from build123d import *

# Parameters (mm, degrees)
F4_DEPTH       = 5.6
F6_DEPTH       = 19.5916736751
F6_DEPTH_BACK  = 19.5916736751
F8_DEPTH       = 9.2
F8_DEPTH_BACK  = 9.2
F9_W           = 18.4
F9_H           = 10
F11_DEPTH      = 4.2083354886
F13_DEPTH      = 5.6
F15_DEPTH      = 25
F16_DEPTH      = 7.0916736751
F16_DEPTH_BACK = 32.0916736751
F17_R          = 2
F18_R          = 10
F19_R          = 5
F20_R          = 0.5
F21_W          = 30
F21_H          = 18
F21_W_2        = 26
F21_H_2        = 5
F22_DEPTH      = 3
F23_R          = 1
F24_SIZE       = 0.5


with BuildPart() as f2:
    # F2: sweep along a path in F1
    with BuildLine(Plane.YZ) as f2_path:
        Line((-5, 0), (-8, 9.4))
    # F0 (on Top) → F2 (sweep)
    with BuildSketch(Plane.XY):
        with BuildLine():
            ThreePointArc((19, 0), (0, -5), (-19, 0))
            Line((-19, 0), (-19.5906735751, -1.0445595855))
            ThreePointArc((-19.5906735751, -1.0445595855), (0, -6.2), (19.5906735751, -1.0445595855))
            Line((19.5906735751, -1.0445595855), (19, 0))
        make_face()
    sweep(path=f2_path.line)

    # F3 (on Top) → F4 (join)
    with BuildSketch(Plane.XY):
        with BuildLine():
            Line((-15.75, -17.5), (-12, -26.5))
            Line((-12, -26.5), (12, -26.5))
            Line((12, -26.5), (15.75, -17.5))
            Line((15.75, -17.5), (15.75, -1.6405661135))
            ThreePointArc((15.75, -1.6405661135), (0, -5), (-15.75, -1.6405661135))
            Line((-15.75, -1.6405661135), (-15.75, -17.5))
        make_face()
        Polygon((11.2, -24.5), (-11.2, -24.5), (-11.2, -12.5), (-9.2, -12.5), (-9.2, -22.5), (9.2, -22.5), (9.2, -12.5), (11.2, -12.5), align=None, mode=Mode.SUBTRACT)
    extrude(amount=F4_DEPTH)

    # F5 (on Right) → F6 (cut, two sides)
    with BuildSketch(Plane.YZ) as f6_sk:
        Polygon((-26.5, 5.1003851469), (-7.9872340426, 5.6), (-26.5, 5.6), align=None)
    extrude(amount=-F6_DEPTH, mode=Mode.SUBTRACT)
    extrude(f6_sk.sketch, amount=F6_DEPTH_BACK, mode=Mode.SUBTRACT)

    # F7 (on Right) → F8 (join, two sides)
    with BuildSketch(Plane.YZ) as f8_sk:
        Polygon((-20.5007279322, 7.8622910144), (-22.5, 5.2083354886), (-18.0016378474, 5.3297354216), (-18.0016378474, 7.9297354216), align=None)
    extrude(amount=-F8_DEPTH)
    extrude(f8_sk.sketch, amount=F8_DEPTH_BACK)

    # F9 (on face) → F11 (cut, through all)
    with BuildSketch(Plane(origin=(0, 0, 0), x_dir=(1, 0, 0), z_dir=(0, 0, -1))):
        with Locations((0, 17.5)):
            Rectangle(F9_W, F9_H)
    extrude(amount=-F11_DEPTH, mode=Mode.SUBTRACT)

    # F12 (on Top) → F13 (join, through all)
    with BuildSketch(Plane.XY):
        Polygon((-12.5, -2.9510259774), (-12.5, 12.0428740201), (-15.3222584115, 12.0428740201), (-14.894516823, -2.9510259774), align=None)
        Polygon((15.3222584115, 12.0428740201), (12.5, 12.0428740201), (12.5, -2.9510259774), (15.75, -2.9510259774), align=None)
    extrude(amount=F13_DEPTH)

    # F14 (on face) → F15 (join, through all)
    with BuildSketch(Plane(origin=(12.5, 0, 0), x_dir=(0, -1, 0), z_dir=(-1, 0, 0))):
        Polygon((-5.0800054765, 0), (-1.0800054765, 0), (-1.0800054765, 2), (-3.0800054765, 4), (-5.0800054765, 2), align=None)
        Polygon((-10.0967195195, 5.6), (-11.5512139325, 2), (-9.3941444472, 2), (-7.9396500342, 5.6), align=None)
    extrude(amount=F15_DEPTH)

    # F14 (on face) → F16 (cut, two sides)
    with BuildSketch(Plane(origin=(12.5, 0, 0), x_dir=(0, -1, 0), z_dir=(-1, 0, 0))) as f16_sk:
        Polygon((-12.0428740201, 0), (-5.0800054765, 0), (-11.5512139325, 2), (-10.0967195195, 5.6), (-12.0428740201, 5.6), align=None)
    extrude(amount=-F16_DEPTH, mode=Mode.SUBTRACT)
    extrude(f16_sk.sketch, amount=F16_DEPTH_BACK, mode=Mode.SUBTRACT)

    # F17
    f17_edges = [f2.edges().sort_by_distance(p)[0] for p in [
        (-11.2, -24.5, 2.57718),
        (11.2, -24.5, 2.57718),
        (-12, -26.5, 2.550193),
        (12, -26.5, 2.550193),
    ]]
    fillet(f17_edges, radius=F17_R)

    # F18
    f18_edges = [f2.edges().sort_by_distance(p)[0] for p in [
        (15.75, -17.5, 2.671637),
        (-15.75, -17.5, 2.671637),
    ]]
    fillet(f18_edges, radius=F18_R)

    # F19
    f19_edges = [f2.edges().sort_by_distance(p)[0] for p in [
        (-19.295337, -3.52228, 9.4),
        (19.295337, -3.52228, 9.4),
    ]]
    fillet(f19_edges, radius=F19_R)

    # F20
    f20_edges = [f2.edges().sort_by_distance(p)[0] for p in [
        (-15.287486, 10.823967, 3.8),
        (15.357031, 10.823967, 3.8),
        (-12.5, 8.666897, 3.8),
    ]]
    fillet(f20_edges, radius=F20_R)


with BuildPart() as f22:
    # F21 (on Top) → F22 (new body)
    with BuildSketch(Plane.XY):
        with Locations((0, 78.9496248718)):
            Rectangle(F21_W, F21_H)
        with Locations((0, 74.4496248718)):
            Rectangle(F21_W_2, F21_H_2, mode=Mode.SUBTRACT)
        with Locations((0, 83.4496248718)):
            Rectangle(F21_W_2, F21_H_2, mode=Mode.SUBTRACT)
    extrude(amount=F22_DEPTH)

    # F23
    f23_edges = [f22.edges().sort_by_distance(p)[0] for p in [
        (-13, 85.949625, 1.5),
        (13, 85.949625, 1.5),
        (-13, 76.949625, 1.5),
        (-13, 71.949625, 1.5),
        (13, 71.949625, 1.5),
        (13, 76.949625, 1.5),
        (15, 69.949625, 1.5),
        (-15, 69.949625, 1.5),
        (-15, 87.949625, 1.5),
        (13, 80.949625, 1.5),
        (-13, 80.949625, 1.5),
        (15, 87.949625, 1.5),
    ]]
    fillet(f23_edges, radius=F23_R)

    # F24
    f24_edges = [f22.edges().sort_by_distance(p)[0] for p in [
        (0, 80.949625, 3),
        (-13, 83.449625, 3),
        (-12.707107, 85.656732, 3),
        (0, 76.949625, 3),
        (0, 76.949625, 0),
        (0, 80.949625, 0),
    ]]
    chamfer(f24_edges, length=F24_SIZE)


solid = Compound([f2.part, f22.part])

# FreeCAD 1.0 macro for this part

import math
import FreeCAD as App
import Part
import Sketcher
Q = App.Units.Quantity


def edges_at(feature, points):
    """Names of the edges that pass closest to the given points."""
    edges = feature.Shape.Edges
    near = lambda p: min(range(len(edges)), key=lambda i: edges[i].distToShape(Part.Vertex(*p))[0])
    return sorted({f"Edge{near(p) + 1}" for p in points})

doc = App.newDocument("Part")
body = doc.addObject("PartDesign::Body", "Body")

sketch1 = body.newObject("Sketcher::SketchObject", "Sketch")
sketch1.AttachmentSupport = (doc.getObject("XY_Plane"), [""])
sketch1.MapMode = "FlatFace"
sketch1.addGeometry(Part.ArcOfCircle(Part.Circle(App.Vector(0, 33.6, 0), App.Vector(0, 0, 1), 38.6), math.radians(-119), math.radians(-61)), False)
sketch1.addGeometry(Part.LineSegment(App.Vector(-19, 0, 0), App.Vector(-19.6, -1, 0)), False)
sketch1.addGeometry(Part.ArcOfCircle(Part.Circle(App.Vector(0, 33.6, 0), App.Vector(0, 0, 1), 39.8), math.radians(-119), math.radians(-61)), False)
sketch1.addGeometry(Part.LineSegment(App.Vector(19.6, -1, 0), App.Vector(19, 0, 0)), False)
sketch1.addConstraint(Sketcher.Constraint("Coincident", 0, 1, 1, 1))
sketch1.addConstraint(Sketcher.Constraint("Coincident", 1, 2, 2, 1))
sketch1.addConstraint(Sketcher.Constraint("Coincident", 2, 2, 3, 1))
sketch1.addConstraint(Sketcher.Constraint("Coincident", 3, 2, 0, 2))
sketch1.addConstraint(Sketcher.Constraint("Coincident", 2, 3, 0, 3))
sketch1.addConstraint(Sketcher.Constraint("Symmetric", 0, 1, 3, 2, -1, 1))
sketch1.addConstraint(Sketcher.Constraint("Symmetric", 1, 2, 2, 2, -2))
sketch1.addConstraint(Sketcher.Constraint("Radius", 0, 38.6))
sketch1.addConstraint(Sketcher.Constraint("Radius", 2, 39.8))
sketch1.addConstraint(Sketcher.Constraint("DistanceX", 0, 1, -1, 1, 19.0))
sketch1.addConstraint(Sketcher.Constraint("DistanceY", 1, 2, -1, 1, 1.04456))

sketch2 = body.newObject("Sketcher::SketchObject", "Sketch001")
sketch2.Placement = App.Placement(App.Vector(0, -4.537798, -1.448233), App.Rotation(App.Vector(0, 0.304040174, -0.952659211), App.Vector(1, 0, 0), App.Vector(0, -0.952659211, -0.304040174), "ZXY"))
sketch2.addGeometry(Part.LineSegment(App.Vector(-2, 0, 0), App.Vector(-11, 0, 0)), False)
sketch2.addConstraint(Sketcher.Constraint("Horizontal", 0))
sketch2.addConstraint(Sketcher.Constraint("PointOnObject", 0, 1, -1))
sketch2.addConstraint(Sketcher.Constraint("DistanceX", 0, 1, -1, 1, 1.520201))
sketch2.addConstraint(Sketcher.Constraint("DistanceX", 0, 2, 0, 1, 9.867117))
doc.recompute()

additivepipe = body.newObject("PartDesign::AdditivePipe", "AdditivePipe")
additivepipe.Profile = sketch1
additivepipe.Spine = (sketch2, ["Edge1"])

sketch3 = body.newObject("Sketcher::SketchObject", "Sketch002")
sketch3.AttachmentSupport = (doc.getObject("XY_Plane"), [""])
sketch3.MapMode = "FlatFace"
sketch3.addGeometry(Part.LineSegment(App.Vector(-15.8, -17.5, 0), App.Vector(-12, -26.5, 0)), False)
sketch3.addGeometry(Part.LineSegment(App.Vector(-12, -26.5, 0), App.Vector(12, -26.5, 0)), False)
sketch3.addGeometry(Part.LineSegment(App.Vector(12, -26.5, 0), App.Vector(15.8, -17.5, 0)), False)
sketch3.addGeometry(Part.LineSegment(App.Vector(15.8, -17.5, 0), App.Vector(15.8, -1.6, 0)), False)
sketch3.addGeometry(Part.ArcOfCircle(Part.Circle(App.Vector(0, 33.6, 0), App.Vector(0, 0, 1), 38.6), math.radians(-114), math.radians(-66)), False)
sketch3.addGeometry(Part.LineSegment(App.Vector(-15.8, -1.6, 0), App.Vector(-15.8, -17.5, 0)), False)
sketch3.addGeometry(Part.LineSegment(App.Vector(11.2, -12.5, 0), App.Vector(11.2, -24.5, 0)), False)
sketch3.addGeometry(Part.LineSegment(App.Vector(11.2, -24.5, 0), App.Vector(-11.2, -24.5, 0)), False)
sketch3.addGeometry(Part.LineSegment(App.Vector(-11.2, -24.5, 0), App.Vector(-11.2, -12.5, 0)), False)
sketch3.addGeometry(Part.LineSegment(App.Vector(-11.2, -12.5, 0), App.Vector(-9.2, -12.5, 0)), False)
sketch3.addGeometry(Part.LineSegment(App.Vector(-9.2, -12.5, 0), App.Vector(-9.2, -22.5, 0)), False)
sketch3.addGeometry(Part.LineSegment(App.Vector(-9.2, -22.5, 0), App.Vector(9.2, -22.5, 0)), False)
sketch3.addGeometry(Part.LineSegment(App.Vector(9.2, -22.5, 0), App.Vector(9.2, -12.5, 0)), False)
sketch3.addGeometry(Part.LineSegment(App.Vector(9.2, -12.5, 0), App.Vector(11.2, -12.5, 0)), False)
sketch3.addConstraint(Sketcher.Constraint("Coincident", 0, 2, 1, 1))
sketch3.addConstraint(Sketcher.Constraint("Coincident", 1, 2, 2, 1))
sketch3.addConstraint(Sketcher.Constraint("Coincident", 2, 2, 3, 1))
sketch3.addConstraint(Sketcher.Constraint("Coincident", 3, 2, 4, 2))
sketch3.addConstraint(Sketcher.Constraint("Coincident", 4, 1, 5, 1))
sketch3.addConstraint(Sketcher.Constraint("Coincident", 5, 2, 0, 1))
sketch3.addConstraint(Sketcher.Constraint("Coincident", 6, 2, 7, 1))
sketch3.addConstraint(Sketcher.Constraint("Coincident", 7, 2, 8, 1))
sketch3.addConstraint(Sketcher.Constraint("Coincident", 8, 2, 9, 1))
sketch3.addConstraint(Sketcher.Constraint("Coincident", 9, 2, 10, 1))
sketch3.addConstraint(Sketcher.Constraint("Coincident", 10, 2, 11, 1))
sketch3.addConstraint(Sketcher.Constraint("Coincident", 11, 2, 12, 1))
sketch3.addConstraint(Sketcher.Constraint("Coincident", 12, 2, 13, 1))
sketch3.addConstraint(Sketcher.Constraint("Coincident", 13, 2, 6, 1))
sketch3.addConstraint(Sketcher.Constraint("Horizontal", 1))
sketch3.addConstraint(Sketcher.Constraint("Vertical", 3))
sketch3.addConstraint(Sketcher.Constraint("Vertical", 5))
sketch3.addConstraint(Sketcher.Constraint("Vertical", 6))
sketch3.addConstraint(Sketcher.Constraint("Horizontal", 7))
sketch3.addConstraint(Sketcher.Constraint("Vertical", 8))
sketch3.addConstraint(Sketcher.Constraint("Horizontal", 9))
sketch3.addConstraint(Sketcher.Constraint("Vertical", 10))
sketch3.addConstraint(Sketcher.Constraint("Horizontal", 11))
sketch3.addConstraint(Sketcher.Constraint("Vertical", 12))
sketch3.addConstraint(Sketcher.Constraint("Horizontal", 13))
sketch3.addConstraint(Sketcher.Constraint("Symmetric", 3, 2, 4, 1, -2))
sketch3.addConstraint(Sketcher.Constraint("Symmetric", 9, 2, 12, 2, -2))
sketch3.addConstraint(Sketcher.Constraint("Horizontal", 2, 2, 5, 2))
sketch3.addConstraint(Sketcher.Constraint("Equal", 9, 13))
sketch3.addConstraint(Sketcher.Constraint("Equal", 0, 2))
sketch3.addConstraint(Sketcher.Constraint("Radius", 4, 38.6))
sketch3.addConstraint(Sketcher.Constraint("DistanceX", 1, 1, 1, 2, 24.0))
sketch3.addConstraint(Sketcher.Constraint("DistanceX", 9, 1, 9, 2, 2.0))
sketch3.addConstraint(Sketcher.Constraint("DistanceY", 6, 2, 6, 1, 12.0))
sketch3.addConstraint(Sketcher.Constraint("DistanceY", 10, 2, 10, 1, 10.0))
sketch3.addConstraint(Sketcher.Constraint("DistanceX", 7, 2, 7, 1, 22.4))
sketch3.addConstraint(Sketcher.Constraint("DistanceY", 1, 2, 2, 2, 9.0))
sketch3.addConstraint(Sketcher.Constraint("DistanceY", 1, 2, 6, 2, 2.0))
sketch3.addConstraint(Sketcher.Constraint("DistanceY", -1, 1, 4, 3, 33.6))
sketch3.addConstraint(Sketcher.Constraint("DistanceY", 0, 2, -1, 1, 26.5))
sketch3.addConstraint(Sketcher.Constraint("DistanceX", 4, 1, 3, 2, 31.5))
pad1 = body.newObject("PartDesign::Pad", "Pad")
pad1.Profile = sketch3
pad1.Length = 5.6

sketch4 = body.newObject("Sketcher::SketchObject", "Sketch003")
sketch4.AttachmentSupport = (doc.getObject("YZ_Plane"), [""])
sketch4.MapMode = "FlatFace"
sketch4.addGeometry(Part.LineSegment(App.Vector(-26.5, 5.1, 0), App.Vector(-7.99, 5.6, 0)), False)
sketch4.addGeometry(Part.LineSegment(App.Vector(-7.99, 5.6, 0), App.Vector(-26.5, 5.6, 0)), False)
sketch4.addGeometry(Part.LineSegment(App.Vector(-26.5, 5.6, 0), App.Vector(-26.5, 5.1, 0)), False)
sketch4.addConstraint(Sketcher.Constraint("Coincident", 0, 2, 1, 1))
sketch4.addConstraint(Sketcher.Constraint("Coincident", 1, 2, 2, 1))
sketch4.addConstraint(Sketcher.Constraint("Coincident", 2, 2, 0, 1))
sketch4.addConstraint(Sketcher.Constraint("Horizontal", 1))
sketch4.addConstraint(Sketcher.Constraint("Vertical", 2))
sketch4.addConstraint(Sketcher.Constraint("DistanceY", -1, 1, 0, 2, 5.6))
sketch4.addConstraint(Sketcher.Constraint("DistanceX", 1, 2, -1, 1, 26.5))
sketch4.addConstraint(Sketcher.Constraint("DistanceX", 1, 2, 1, 1, 18.512766))
sketch4.addConstraint(Sketcher.Constraint("DistanceY", 2, 2, 2, 1, 0.499615))
pocket1 = body.newObject("PartDesign::Pocket", "Pocket")
pocket1.Profile = sketch4
pocket1.Type = "ThroughAll"
pocket1.Midplane = True

sketch5 = body.newObject("Sketcher::SketchObject", "Sketch004")
sketch5.AttachmentSupport = (doc.getObject("YZ_Plane"), [""])
sketch5.MapMode = "FlatFace"
sketch5.addGeometry(Part.LineSegment(App.Vector(-20.5, 7.9, 0), App.Vector(-22.5, 5.2, 0)), False)
sketch5.addGeometry(Part.LineSegment(App.Vector(-22.5, 5.2, 0), App.Vector(-18, 5.3, 0)), False)
sketch5.addGeometry(Part.LineSegment(App.Vector(-18, 5.3, 0), App.Vector(-18, 7.9, 0)), False)
sketch5.addGeometry(Part.LineSegment(App.Vector(-18, 7.9, 0), App.Vector(-20.5, 7.9, 0)), False)
sketch5.addConstraint(Sketcher.Constraint("Coincident", 0, 2, 1, 1))
sketch5.addConstraint(Sketcher.Constraint("Coincident", 1, 2, 2, 1))
sketch5.addConstraint(Sketcher.Constraint("Coincident", 2, 2, 3, 1))
sketch5.addConstraint(Sketcher.Constraint("Coincident", 3, 2, 0, 1))
sketch5.addConstraint(Sketcher.Constraint("Vertical", 2))
sketch5.addConstraint(Sketcher.Constraint("Parallel", 1, 3))
sketch5.addConstraint(Sketcher.Constraint("DistanceY", 2, 1, 2, 2, 2.6))
sketch5.addConstraint(Sketcher.Constraint("Distance", 1, 4.5))
sketch5.addConstraint(Sketcher.Constraint("Distance", 3, 2.5))
sketch5.addConstraint(Sketcher.Constraint("DistanceX", 0, 2, -1, 1, 22.5))
sketch5.addConstraint(Sketcher.Constraint("DistanceY", 0, 2, 1, 2, 0.1214))
sketch5.addConstraint(Sketcher.Constraint("DistanceY", -1, 1, 3, 2, 7.862291))
pad2 = body.newObject("PartDesign::Pad", "Pad001")
pad2.Profile = sketch5
pad2.Type = "TwoLengths"
pad2.Length = 9.2
pad2.Length2 = 9.2
pad2.Reversed = True

sketch6 = body.newObject("Sketcher::SketchObject", "Sketch005")
sketch6.AttachmentSupport = (doc.getObject("XY_Plane"), [""])
sketch6.MapMode = "FlatFace"
sketch6.addGeometry(Part.LineSegment(App.Vector(-9, -22, 0), App.Vector(-9, -12, 0)), False)
sketch6.addGeometry(Part.LineSegment(App.Vector(-9, -12, 0), App.Vector(9, -12, 0)), False)
sketch6.addGeometry(Part.LineSegment(App.Vector(9, -12, 0), App.Vector(9, -22, 0)), False)
sketch6.addGeometry(Part.LineSegment(App.Vector(9, -22, 0), App.Vector(-9, -22, 0)), False)
sketch6.addConstraint(Sketcher.Constraint("Coincident", 0, 2, 1, 1))
sketch6.addConstraint(Sketcher.Constraint("Coincident", 1, 2, 2, 1))
sketch6.addConstraint(Sketcher.Constraint("Coincident", 2, 2, 3, 1))
sketch6.addConstraint(Sketcher.Constraint("Coincident", 3, 2, 0, 1))
sketch6.addConstraint(Sketcher.Constraint("Vertical", 0))
sketch6.addConstraint(Sketcher.Constraint("Horizontal", 1))
sketch6.addConstraint(Sketcher.Constraint("Vertical", 2))
sketch6.addConstraint(Sketcher.Constraint("Horizontal", 3))
sketch6.addConstraint(Sketcher.Constraint("DistanceY", 0, 1, 0, 2, 10.0))
sketch6.addConstraint(Sketcher.Constraint("DistanceX", 1, 1, 1, 2, 18.4))
sketch6.addConstraint(Sketcher.Constraint("DistanceX", 0, 2, -1, 1, 9.2))
sketch6.addConstraint(Sketcher.Constraint("DistanceY", 0, 2, -1, 1, 12.5))
pocket2 = body.newObject("PartDesign::Pocket", "Pocket001")
pocket2.Profile = sketch6
pocket2.Length = 4.208335
pocket2.Reversed = True

sketch7 = body.newObject("Sketcher::SketchObject", "Sketch006")
sketch7.AttachmentSupport = (doc.getObject("XY_Plane"), [""])
sketch7.MapMode = "FlatFace"
sketch7.addGeometry(Part.LineSegment(App.Vector(-12.5, -3, 0), App.Vector(-12.5, 12, 0)), False)
sketch7.addGeometry(Part.LineSegment(App.Vector(-12.5, 12, 0), App.Vector(-15.3, 12, 0)), False)
sketch7.addGeometry(Part.LineSegment(App.Vector(-15.3, 12, 0), App.Vector(-14.9, -3, 0)), False)
sketch7.addGeometry(Part.LineSegment(App.Vector(-14.9, -3, 0), App.Vector(-12.5, -3, 0)), False)
sketch7.addGeometry(Part.LineSegment(App.Vector(15.3, 12, 0), App.Vector(12.5, 12, 0)), False)
sketch7.addGeometry(Part.LineSegment(App.Vector(12.5, 12, 0), App.Vector(12.5, -3, 0)), False)
sketch7.addGeometry(Part.LineSegment(App.Vector(12.5, -3, 0), App.Vector(15.8, -3, 0)), False)
sketch7.addGeometry(Part.LineSegment(App.Vector(15.8, -3, 0), App.Vector(15.3, 12, 0)), False)
sketch7.addConstraint(Sketcher.Constraint("Coincident", 0, 2, 1, 1))
sketch7.addConstraint(Sketcher.Constraint("Coincident", 1, 2, 2, 1))
sketch7.addConstraint(Sketcher.Constraint("Coincident", 2, 2, 3, 1))
sketch7.addConstraint(Sketcher.Constraint("Coincident", 3, 2, 0, 1))
sketch7.addConstraint(Sketcher.Constraint("Coincident", 4, 2, 5, 1))
sketch7.addConstraint(Sketcher.Constraint("Coincident", 5, 2, 6, 1))
sketch7.addConstraint(Sketcher.Constraint("Coincident", 6, 2, 7, 1))
sketch7.addConstraint(Sketcher.Constraint("Coincident", 7, 2, 4, 1))
sketch7.addConstraint(Sketcher.Constraint("Vertical", 0))
sketch7.addConstraint(Sketcher.Constraint("Horizontal", 1))
sketch7.addConstraint(Sketcher.Constraint("Horizontal", 3))
sketch7.addConstraint(Sketcher.Constraint("Horizontal", 4))
sketch7.addConstraint(Sketcher.Constraint("Vertical", 5))
sketch7.addConstraint(Sketcher.Constraint("Horizontal", 6))
sketch7.addConstraint(Sketcher.Constraint("Symmetric", 0, 2, 4, 2, -2))
sketch7.addConstraint(Sketcher.Constraint("Parallel", 2, 7))
sketch7.addConstraint(Sketcher.Constraint("Horizontal", 3, 2, 5, 2))
sketch7.addConstraint(Sketcher.Constraint("Equal", 1, 4))
sketch7.addConstraint(Sketcher.Constraint("Distance", 2, 15.0))
sketch7.addConstraint(Sketcher.Constraint("DistanceX", 0, 2, 4, 2, 25.0))
sketch7.addConstraint(Sketcher.Constraint("DistanceX", 6, 1, 6, 2, 3.25))
sketch7.addConstraint(Sketcher.Constraint("DistanceY", 0, 1, 0, 2, 14.9939))
sketch7.addConstraint(Sketcher.Constraint("DistanceY", -1, 1, 0, 2, 12.042874))
pad3 = body.newObject("PartDesign::Pad", "Pad002")
pad3.Profile = sketch7
pad3.Length = 5.6

sketch8 = body.newObject("Sketcher::SketchObject", "Sketch007")
sketch8.AttachmentSupport = (doc.getObject("YZ_Plane"), [""])
sketch8.MapMode = "FlatFace"
sketch8.AttachmentOffset = App.Placement(App.Vector(0, 0, 12.5), App.Rotation())
sketch8.addGeometry(Part.LineSegment(App.Vector(5.1, 0, 0), App.Vector(1.1, 0, 0)), False)
sketch8.addGeometry(Part.LineSegment(App.Vector(1.1, 0, 0), App.Vector(1.1, 2, 0)), False)
sketch8.addGeometry(Part.LineSegment(App.Vector(1.1, 2, 0), App.Vector(3.1, 4, 0)), False)
sketch8.addGeometry(Part.LineSegment(App.Vector(3.1, 4, 0), App.Vector(5.1, 2, 0)), False)
sketch8.addGeometry(Part.LineSegment(App.Vector(5.1, 2, 0), App.Vector(5.1, 0, 0)), False)
sketch8.addGeometry(Part.LineSegment(App.Vector(10.1, 5.6, 0), App.Vector(11.6, 2, 0)), False)
sketch8.addGeometry(Part.LineSegment(App.Vector(11.6, 2, 0), App.Vector(9.4, 2, 0)), False)
sketch8.addGeometry(Part.LineSegment(App.Vector(9.4, 2, 0), App.Vector(7.9, 5.6, 0)), False)
sketch8.addGeometry(Part.LineSegment(App.Vector(7.9, 5.6, 0), App.Vector(10.1, 5.6, 0)), False)
sketch8.addConstraint(Sketcher.Constraint("Coincident", 0, 2, 1, 1))
sketch8.addConstraint(Sketcher.Constraint("Coincident", 1, 2, 2, 1))
sketch8.addConstraint(Sketcher.Constraint("Coincident", 2, 2, 3, 1))
sketch8.addConstraint(Sketcher.Constraint("Coincident", 3, 2, 4, 1))
sketch8.addConstraint(Sketcher.Constraint("Coincident", 4, 2, 0, 1))
sketch8.addConstraint(Sketcher.Constraint("Coincident", 5, 2, 6, 1))
sketch8.addConstraint(Sketcher.Constraint("Coincident", 6, 2, 7, 1))
sketch8.addConstraint(Sketcher.Constraint("Coincident", 7, 2, 8, 1))
sketch8.addConstraint(Sketcher.Constraint("Coincident", 8, 2, 5, 1))
sketch8.addConstraint(Sketcher.Constraint("Horizontal", 0))
sketch8.addConstraint(Sketcher.Constraint("Vertical", 1))
sketch8.addConstraint(Sketcher.Constraint("Vertical", 4))
sketch8.addConstraint(Sketcher.Constraint("Horizontal", 6))
sketch8.addConstraint(Sketcher.Constraint("Horizontal", 8))
sketch8.addConstraint(Sketcher.Constraint("PointOnObject", 0, 2, -1))
sketch8.addConstraint(Sketcher.Constraint("Perpendicular", 2, 3))
sketch8.addConstraint(Sketcher.Constraint("Parallel", 5, 7))
sketch8.addConstraint(Sketcher.Constraint("Horizontal", 1, 2, 3, 2))
sketch8.addConstraint(Sketcher.Constraint("Horizontal", 3, 2, 5, 2))
sketch8.addConstraint(Sketcher.Constraint("Equal", 2, 3))
sketch8.addConstraint(Sketcher.Constraint("DistanceX", 0, 2, 0, 1, 4.0))
sketch8.addConstraint(Sketcher.Constraint("DistanceY", 1, 1, 1, 2, 2.0))
sketch8.addConstraint(Sketcher.Constraint("Angle", 5, Q("-68 deg")))
sketch8.addConstraint(Sketcher.Constraint("DistanceY", -1, 1, 7, 2, 5.6))
sketch8.addConstraint(Sketcher.Constraint("DistanceX", 6, 2, 6, 1, 2.157069))
sketch8.addConstraint(Sketcher.Constraint("DistanceX", -1, 1, 7, 2, 7.93965))
sketch8.addConstraint(Sketcher.Constraint("DistanceX", 3, 2, 5, 2, 6.471208))
pad4 = body.newObject("PartDesign::Pad", "Pad003")
pad4.Profile = sketch8
pad4.Type = "UpToLast"
pad4.Reversed = True

sketch9 = body.newObject("Sketcher::SketchObject", "Sketch008")
sketch9.AttachmentSupport = (doc.getObject("YZ_Plane"), [""])
sketch9.MapMode = "FlatFace"
sketch9.AttachmentOffset = App.Placement(App.Vector(0, 0, 12.5), App.Rotation())
sketch9.addGeometry(Part.LineSegment(App.Vector(12, 0, 0), App.Vector(5.1, 0, 0)), False)
sketch9.addGeometry(Part.LineSegment(App.Vector(5.1, 0, 0), App.Vector(11.6, 2, 0)), False)
sketch9.addGeometry(Part.LineSegment(App.Vector(11.6, 2, 0), App.Vector(10.1, 5.6, 0)), False)
sketch9.addGeometry(Part.LineSegment(App.Vector(10.1, 5.6, 0), App.Vector(12, 5.6, 0)), False)
sketch9.addGeometry(Part.LineSegment(App.Vector(12, 5.6, 0), App.Vector(12, 0, 0)), False)
sketch9.addConstraint(Sketcher.Constraint("Coincident", 0, 2, 1, 1))
sketch9.addConstraint(Sketcher.Constraint("Coincident", 1, 2, 2, 1))
sketch9.addConstraint(Sketcher.Constraint("Coincident", 2, 2, 3, 1))
sketch9.addConstraint(Sketcher.Constraint("Coincident", 3, 2, 4, 1))
sketch9.addConstraint(Sketcher.Constraint("Coincident", 4, 2, 0, 1))
sketch9.addConstraint(Sketcher.Constraint("Horizontal", 0))
sketch9.addConstraint(Sketcher.Constraint("Horizontal", 3))
sketch9.addConstraint(Sketcher.Constraint("Vertical", 4))
sketch9.addConstraint(Sketcher.Constraint("PointOnObject", 0, 2, -1))
sketch9.addConstraint(Sketcher.Constraint("Angle", 2, Q("112 deg")))
sketch9.addConstraint(Sketcher.Constraint("DistanceY", 4, 2, 4, 1, 5.6))
sketch9.addConstraint(Sketcher.Constraint("DistanceY", -1, 1, 1, 2, 2.0))
sketch9.addConstraint(Sketcher.Constraint("DistanceX", 0, 2, 0, 1, 6.962869))
sketch9.addConstraint(Sketcher.Constraint("DistanceX", 3, 1, 3, 2, 1.946154))
sketch9.addConstraint(Sketcher.Constraint("DistanceX", -1, 1, 2, 2, 10.09672))
pocket3 = body.newObject("PartDesign::Pocket", "Pocket002")
pocket3.Profile = sketch9
pocket3.Type = "ThroughAll"
pocket3.Midplane = True
doc.recompute()

fillet = body.newObject("PartDesign::Fillet", "Fillet")
fillet.Base = (pocket3, edges_at(pocket3, [
    (-11.2, -24.5, 2.577),
    (11.2, -24.5, 2.577),
    (-12, -26.5, 2.55),
    (12, -26.5, 2.55),
]))
fillet.Radius = 2
doc.recompute()

fillet2 = body.newObject("PartDesign::Fillet", "Fillet001")
fillet2.Base = (fillet, edges_at(fillet, [(15.75, -17.5, 2.672), (-15.75, -17.5, 2.672)]))
fillet2.Radius = 10
doc.recompute()

fillet3 = body.newObject("PartDesign::Fillet", "Fillet002")
fillet3.Base = (fillet2, edges_at(fillet2, [(-19.295, -3.522, 9.4), (19.295, -3.522, 9.4)]))
fillet3.Radius = 5
doc.recompute()

fillet4 = body.newObject("PartDesign::Fillet", "Fillet003")
fillet4.Base = (fillet3, edges_at(fillet3, [(-15.287, 10.824, 3.8), (15.357, 10.824, 3.8), (-12.5, 8.667, 3.8)]))
fillet4.Radius = 0.5
body2 = doc.addObject("PartDesign::Body", "Body001")

sketch10 = body2.newObject("Sketcher::SketchObject", "Sketch009")
sketch10.AttachmentSupport = (doc.getObject("XY_Plane001"), [""])
sketch10.MapMode = "FlatFace"
sketch10.addGeometry(Part.LineSegment(App.Vector(-15, 88, 0), App.Vector(-15, 70, 0)), False)
sketch10.addGeometry(Part.LineSegment(App.Vector(-15, 70, 0), App.Vector(15, 70, 0)), False)
sketch10.addGeometry(Part.LineSegment(App.Vector(15, 70, 0), App.Vector(15, 88, 0)), False)
sketch10.addGeometry(Part.LineSegment(App.Vector(15, 88, 0), App.Vector(-15, 88, 0)), False)
sketch10.addGeometry(Part.LineSegment(App.Vector(13, 72, 0), App.Vector(-13, 72, 0)), False)
sketch10.addGeometry(Part.LineSegment(App.Vector(-13, 72, 0), App.Vector(-13, 77, 0)), False)
sketch10.addGeometry(Part.LineSegment(App.Vector(-13, 77, 0), App.Vector(13, 77, 0)), False)
sketch10.addGeometry(Part.LineSegment(App.Vector(13, 77, 0), App.Vector(13, 72, 0)), False)
sketch10.addGeometry(Part.LineSegment(App.Vector(13, 81, 0), App.Vector(-13, 81, 0)), False)
sketch10.addGeometry(Part.LineSegment(App.Vector(-13, 81, 0), App.Vector(-13, 86, 0)), False)
sketch10.addGeometry(Part.LineSegment(App.Vector(-13, 86, 0), App.Vector(13, 86, 0)), False)
sketch10.addGeometry(Part.LineSegment(App.Vector(13, 86, 0), App.Vector(13, 81, 0)), False)
sketch10.addConstraint(Sketcher.Constraint("Coincident", 0, 2, 1, 1))
sketch10.addConstraint(Sketcher.Constraint("Coincident", 1, 2, 2, 1))
sketch10.addConstraint(Sketcher.Constraint("Coincident", 2, 2, 3, 1))
sketch10.addConstraint(Sketcher.Constraint("Coincident", 3, 2, 0, 1))
sketch10.addConstraint(Sketcher.Constraint("Coincident", 4, 2, 5, 1))
sketch10.addConstraint(Sketcher.Constraint("Coincident", 5, 2, 6, 1))
sketch10.addConstraint(Sketcher.Constraint("Coincident", 6, 2, 7, 1))
sketch10.addConstraint(Sketcher.Constraint("Coincident", 7, 2, 4, 1))
sketch10.addConstraint(Sketcher.Constraint("Coincident", 8, 2, 9, 1))
sketch10.addConstraint(Sketcher.Constraint("Coincident", 9, 2, 10, 1))
sketch10.addConstraint(Sketcher.Constraint("Coincident", 10, 2, 11, 1))
sketch10.addConstraint(Sketcher.Constraint("Coincident", 11, 2, 8, 1))
sketch10.addConstraint(Sketcher.Constraint("Vertical", 0))
sketch10.addConstraint(Sketcher.Constraint("Horizontal", 1))
sketch10.addConstraint(Sketcher.Constraint("Vertical", 2))
sketch10.addConstraint(Sketcher.Constraint("Horizontal", 3))
sketch10.addConstraint(Sketcher.Constraint("Horizontal", 4))
sketch10.addConstraint(Sketcher.Constraint("Vertical", 5))
sketch10.addConstraint(Sketcher.Constraint("Horizontal", 6))
sketch10.addConstraint(Sketcher.Constraint("Vertical", 7))
sketch10.addConstraint(Sketcher.Constraint("Horizontal", 8))
sketch10.addConstraint(Sketcher.Constraint("Vertical", 9))
sketch10.addConstraint(Sketcher.Constraint("Horizontal", 10))
sketch10.addConstraint(Sketcher.Constraint("Vertical", 11))
sketch10.addConstraint(Sketcher.Constraint("Vertical", 5, 2, 8, 2))
sketch10.addConstraint(Sketcher.Constraint("Vertical", 7, 2, 10, 2))
sketch10.addConstraint(Sketcher.Constraint("Equal", 7, 9))
sketch10.addConstraint(Sketcher.Constraint("DistanceX", 1, 1, 1, 2, 30.0))
sketch10.addConstraint(Sketcher.Constraint("DistanceX", 4, 2, 4, 1, 26.0))
sketch10.addConstraint(Sketcher.Constraint("DistanceY", 0, 2, 0, 1, 18.0))
sketch10.addConstraint(Sketcher.Constraint("DistanceY", 5, 1, 5, 2, 5.0))
sketch10.addConstraint(Sketcher.Constraint("DistanceX", 0, 2, -1, 1, 15.0))
sketch10.addConstraint(Sketcher.Constraint("DistanceX", 4, 2, -1, 1, 13.0))
sketch10.addConstraint(Sketcher.Constraint("DistanceY", 0, 2, 4, 2, 2.0))
sketch10.addConstraint(Sketcher.Constraint("DistanceY", 5, 2, 8, 2, 4.0))
sketch10.addConstraint(Sketcher.Constraint("DistanceY", -1, 1, 0, 2, 69.949625))
pad5 = body2.newObject("PartDesign::Pad", "Pad004")
pad5.Profile = sketch10
pad5.Length = 3
doc.recompute()

fillet5 = body2.newObject("PartDesign::Fillet", "Fillet004")
fillet5.Base = (pad5, edges_at(pad5, [
    (-13, 85.95, 1.5),
    (13, 85.95, 1.5),
    (-13, 76.95, 1.5),
    (-13, 71.95, 1.5),
    (13, 71.95, 1.5),
    (13, 76.95, 1.5),
    (15, 69.95, 1.5),
    (-15, 69.95, 1.5),
    (-15, 87.95, 1.5),
    (13, 80.95, 1.5),
    (-13, 80.95, 1.5),
    (15, 87.95, 1.5),
]))
fillet5.Radius = 1
doc.recompute()

chamfer = body2.newObject("PartDesign::Chamfer", "Chamfer")
chamfer.Base = (fillet5, edges_at(fillet5, [
    (0, 80.95, 3),
    (-13, 83.45, 3),
    (-12.707, 85.657, 3),
    (0, 76.95, 3),
    (0, 76.95, 0),
    (0, 80.95, 0),
]))
chamfer.Size = 0.5

doc.recompute()
